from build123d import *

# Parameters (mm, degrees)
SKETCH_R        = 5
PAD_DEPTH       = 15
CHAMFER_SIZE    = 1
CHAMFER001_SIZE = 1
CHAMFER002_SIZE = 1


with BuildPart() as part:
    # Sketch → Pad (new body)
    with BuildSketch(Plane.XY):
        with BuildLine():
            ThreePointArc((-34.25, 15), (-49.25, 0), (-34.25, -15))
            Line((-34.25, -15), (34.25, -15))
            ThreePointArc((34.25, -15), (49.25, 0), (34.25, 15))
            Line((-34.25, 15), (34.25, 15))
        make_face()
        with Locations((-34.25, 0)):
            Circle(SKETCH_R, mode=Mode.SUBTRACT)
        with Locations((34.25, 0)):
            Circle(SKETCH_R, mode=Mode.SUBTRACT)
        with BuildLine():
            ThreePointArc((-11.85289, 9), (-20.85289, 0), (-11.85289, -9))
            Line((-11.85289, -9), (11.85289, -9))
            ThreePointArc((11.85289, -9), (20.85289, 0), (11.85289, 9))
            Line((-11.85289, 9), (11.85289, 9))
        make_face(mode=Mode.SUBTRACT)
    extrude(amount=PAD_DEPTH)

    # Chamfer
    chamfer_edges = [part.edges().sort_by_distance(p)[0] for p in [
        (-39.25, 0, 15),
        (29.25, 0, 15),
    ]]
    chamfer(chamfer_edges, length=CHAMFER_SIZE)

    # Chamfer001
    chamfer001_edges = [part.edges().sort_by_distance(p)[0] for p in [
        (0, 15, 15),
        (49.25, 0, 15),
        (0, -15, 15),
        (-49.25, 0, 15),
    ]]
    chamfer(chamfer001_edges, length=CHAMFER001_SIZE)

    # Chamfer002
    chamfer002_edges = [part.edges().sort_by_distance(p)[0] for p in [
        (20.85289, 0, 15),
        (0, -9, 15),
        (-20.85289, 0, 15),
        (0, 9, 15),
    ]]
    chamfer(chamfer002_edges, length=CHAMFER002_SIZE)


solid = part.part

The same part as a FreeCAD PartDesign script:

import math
import FreeCAD as App
import Part
import Sketcher

V = App.Vector
Q = App.Units.Quantity


def edges_at(feature, points):
    """Names of the edges that pass closest to the given points."""
    edges = feature.Shape.Edges
    near = lambda p: min(range(len(edges)), key=lambda i: edges[i].distToShape(Part.Vertex(*p))[0])
    return sorted({f"Edge{near(p) + 1}" for p in points})

doc = App.newDocument("Part")
body = doc.addObject("PartDesign::Body", "Body")

# Sketch on XY plane
sketch1 = doc.addObject("Sketcher::SketchObject", "Sketch")
body.addObject(sketch1)
sketch1.AttachmentSupport = (doc.XY_Plane, [""])
sketch1.MapMode = "FlatFace"
sketch1.addGeometry([
    Part.ArcOfCircle(Part.Circle(V(-34.25, 0, 0), V(0, 0, 1), 15), math.radians(90), math.radians(270)),  # 0
    Part.LineSegment(V(-34.25, -15, 0), V(34.25, -15, 0)),  # 1
    Part.ArcOfCircle(Part.Circle(V(34.25, 0, 0), V(0, 0, 1), 15), math.radians(-90), math.radians(90)),  # 2
    Part.LineSegment(V(34.25, 15, 0), V(-34.25, 15, 0)),  # 3
    Part.Circle(V(-34.25, 0, 0), V(0, 0, 1), 5),  # 4
    Part.ArcOfCircle(Part.Circle(V(-11.85289, 0, 0), V(0, 0, 1), 9), math.radians(90), math.radians(270)),  # 5
    Part.LineSegment(V(-11.85289, 9, 0), V(11.85289, 9, 0)),  # 6
    Part.ArcOfCircle(Part.Circle(V(11.85289, 0, 0), V(0, 0, 1), 9), math.radians(-90), math.radians(90)),  # 7
    Part.LineSegment(V(11.85289, -9, 0), V(-11.85289, -9, 0)),  # 8
    Part.Circle(V(34.25, 0, 0), V(0, 0, 1), 5),  # 9
], False)
sketch1.addConstraint([
    Sketcher.Constraint("Tangent", 0, 2, 1, 1),
    Sketcher.Constraint("Tangent", 1, 2, 2, 1),
    Sketcher.Constraint("Tangent", 2, 2, 3, 1),
    Sketcher.Constraint("Tangent", 3, 2, 0, 1),
    Sketcher.Constraint("Tangent", 5, 1, 6, 1),
    Sketcher.Constraint("Tangent", 6, 2, 7, 2),
    Sketcher.Constraint("Tangent", 7, 1, 8, 1),
    Sketcher.Constraint("Tangent", 8, 2, 5, 2),
    Sketcher.Constraint("Horizontal", 1),
    Sketcher.Constraint("Horizontal", 3),
    Sketcher.Constraint("Horizontal", 6),
    Sketcher.Constraint("Horizontal", 8),
    Sketcher.Constraint("Coincident", 4, 3, 0, 3),
    Sketcher.Constraint("Coincident", 9, 3, 2, 3),
    Sketcher.Constraint("Equal", 4, 9),
    Sketcher.Constraint("Symmetric", 0, 3, 2, 3, -1, 1),
    Sketcher.Constraint("Symmetric", 5, 3, 7, 3, -1, 1),
    Sketcher.Constraint("Diameter", 4, Q("10 mm")),
    Sketcher.Constraint("Radius", 0, Q("15 mm")),
    Sketcher.Constraint("Radius", 5, Q("9 mm")),
    Sketcher.Constraint("DistanceX", 1, 1, 1, 2, Q("68.5 mm")),
    Sketcher.Constraint("DistanceX", 6, 1, 6, 2, Q("23.70578 mm")),
])
pad1 = doc.addObject("PartDesign::Pad", "Pad")
body.addObject(pad1)
pad1.Profile = sketch1
pad1.Length = 15
doc.recompute()

chamfer = doc.addObject("PartDesign::Chamfer", "Chamfer")
body.addObject(chamfer)
chamfer.Base = (pad1, edges_at(pad1, [(-39.25, 0, 15), (29.25, 0, 15)]))
chamfer.Size = 1
doc.recompute()

chamfer2 = doc.addObject("PartDesign::Chamfer", "Chamfer001")
body.addObject(chamfer2)
chamfer2.Base = (chamfer, edges_at(chamfer, [
    (0, 15, 15),
    (49.25, 0, 15),
    (0, -15, 15),
    (-49.25, 0, 15),
]))
chamfer2.Size = 1
doc.recompute()

chamfer3 = doc.addObject("PartDesign::Chamfer", "Chamfer002")
body.addObject(chamfer3)
chamfer3.Base = (chamfer2, edges_at(chamfer2, [
    (20.853, 0, 15),
    (0, -9, 15),
    (-20.853, 0, 15),
    (0, 9, 15),
]))
chamfer3.Size = 1

doc.recompute()
